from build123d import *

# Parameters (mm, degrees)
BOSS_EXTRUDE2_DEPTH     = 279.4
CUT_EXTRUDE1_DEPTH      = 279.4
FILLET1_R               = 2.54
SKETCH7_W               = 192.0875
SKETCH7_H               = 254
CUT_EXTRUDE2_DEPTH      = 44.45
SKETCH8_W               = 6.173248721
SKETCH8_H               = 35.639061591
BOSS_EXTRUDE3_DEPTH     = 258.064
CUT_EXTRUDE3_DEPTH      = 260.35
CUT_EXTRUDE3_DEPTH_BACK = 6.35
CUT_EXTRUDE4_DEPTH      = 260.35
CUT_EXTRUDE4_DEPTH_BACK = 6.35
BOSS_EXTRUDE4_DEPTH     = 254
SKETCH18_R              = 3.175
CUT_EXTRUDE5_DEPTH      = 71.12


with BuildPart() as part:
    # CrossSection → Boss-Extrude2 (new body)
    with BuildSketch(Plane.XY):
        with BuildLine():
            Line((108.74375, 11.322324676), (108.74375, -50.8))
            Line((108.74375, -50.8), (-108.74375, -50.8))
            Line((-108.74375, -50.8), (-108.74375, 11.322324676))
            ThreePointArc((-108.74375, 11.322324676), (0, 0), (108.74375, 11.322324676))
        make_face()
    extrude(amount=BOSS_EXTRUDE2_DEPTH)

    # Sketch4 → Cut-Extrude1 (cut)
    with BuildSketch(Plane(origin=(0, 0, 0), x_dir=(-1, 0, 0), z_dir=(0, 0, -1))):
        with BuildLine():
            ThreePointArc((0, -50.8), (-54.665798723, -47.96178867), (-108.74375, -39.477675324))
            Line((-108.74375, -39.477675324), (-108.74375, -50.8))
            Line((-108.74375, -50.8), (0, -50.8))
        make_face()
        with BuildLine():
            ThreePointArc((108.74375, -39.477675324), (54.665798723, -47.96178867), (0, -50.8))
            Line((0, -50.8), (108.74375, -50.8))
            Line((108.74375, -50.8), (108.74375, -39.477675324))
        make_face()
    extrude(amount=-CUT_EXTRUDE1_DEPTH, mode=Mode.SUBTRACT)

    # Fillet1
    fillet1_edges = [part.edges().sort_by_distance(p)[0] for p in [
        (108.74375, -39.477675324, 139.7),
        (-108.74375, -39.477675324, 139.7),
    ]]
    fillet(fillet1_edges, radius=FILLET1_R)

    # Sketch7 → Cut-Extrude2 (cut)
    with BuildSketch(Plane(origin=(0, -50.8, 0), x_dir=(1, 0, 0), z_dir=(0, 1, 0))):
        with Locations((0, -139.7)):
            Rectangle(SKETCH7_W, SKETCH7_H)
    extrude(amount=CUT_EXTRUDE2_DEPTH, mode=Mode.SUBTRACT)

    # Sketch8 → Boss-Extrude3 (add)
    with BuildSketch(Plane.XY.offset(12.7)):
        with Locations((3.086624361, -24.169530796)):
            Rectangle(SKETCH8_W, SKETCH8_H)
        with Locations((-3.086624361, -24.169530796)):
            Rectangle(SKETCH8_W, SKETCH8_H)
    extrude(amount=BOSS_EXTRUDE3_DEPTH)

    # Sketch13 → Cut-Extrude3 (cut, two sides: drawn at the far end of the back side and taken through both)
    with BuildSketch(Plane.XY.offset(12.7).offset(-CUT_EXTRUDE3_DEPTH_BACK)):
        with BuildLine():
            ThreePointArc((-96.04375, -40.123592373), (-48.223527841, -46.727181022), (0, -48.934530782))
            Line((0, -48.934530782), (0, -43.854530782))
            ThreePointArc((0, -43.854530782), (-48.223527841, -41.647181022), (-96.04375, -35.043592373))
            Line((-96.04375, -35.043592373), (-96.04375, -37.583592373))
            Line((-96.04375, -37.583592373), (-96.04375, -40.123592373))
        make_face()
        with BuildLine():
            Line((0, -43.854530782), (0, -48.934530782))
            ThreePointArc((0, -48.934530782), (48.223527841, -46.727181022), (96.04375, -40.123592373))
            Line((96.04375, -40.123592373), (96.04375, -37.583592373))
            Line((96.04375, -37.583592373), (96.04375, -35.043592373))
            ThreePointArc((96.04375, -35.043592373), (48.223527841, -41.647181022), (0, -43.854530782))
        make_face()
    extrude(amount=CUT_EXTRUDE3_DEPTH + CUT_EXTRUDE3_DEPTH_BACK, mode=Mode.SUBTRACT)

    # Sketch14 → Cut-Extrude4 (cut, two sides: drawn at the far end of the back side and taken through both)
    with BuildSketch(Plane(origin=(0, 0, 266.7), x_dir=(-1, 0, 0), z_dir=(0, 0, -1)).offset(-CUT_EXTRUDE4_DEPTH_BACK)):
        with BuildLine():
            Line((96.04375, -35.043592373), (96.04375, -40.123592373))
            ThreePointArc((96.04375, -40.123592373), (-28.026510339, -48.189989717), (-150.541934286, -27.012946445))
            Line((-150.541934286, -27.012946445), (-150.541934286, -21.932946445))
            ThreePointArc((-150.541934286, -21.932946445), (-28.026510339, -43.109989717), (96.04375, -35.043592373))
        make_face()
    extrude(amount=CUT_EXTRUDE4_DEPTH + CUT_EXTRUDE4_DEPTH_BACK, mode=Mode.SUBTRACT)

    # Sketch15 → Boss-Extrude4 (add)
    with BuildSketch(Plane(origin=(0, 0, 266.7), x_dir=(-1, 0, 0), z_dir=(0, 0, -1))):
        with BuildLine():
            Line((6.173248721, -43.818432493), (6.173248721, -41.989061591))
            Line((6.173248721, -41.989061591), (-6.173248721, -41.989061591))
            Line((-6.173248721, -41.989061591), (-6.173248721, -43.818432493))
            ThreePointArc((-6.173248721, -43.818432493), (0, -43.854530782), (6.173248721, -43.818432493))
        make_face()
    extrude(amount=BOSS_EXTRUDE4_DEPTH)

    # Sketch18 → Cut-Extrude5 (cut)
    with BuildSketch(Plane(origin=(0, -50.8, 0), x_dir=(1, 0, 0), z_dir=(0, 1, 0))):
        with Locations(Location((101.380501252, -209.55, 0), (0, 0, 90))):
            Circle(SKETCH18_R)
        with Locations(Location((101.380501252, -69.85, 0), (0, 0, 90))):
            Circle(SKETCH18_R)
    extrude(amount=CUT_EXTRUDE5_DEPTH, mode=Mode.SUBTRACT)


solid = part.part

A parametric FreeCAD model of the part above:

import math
import FreeCAD as App
import Part
import Sketcher
from FreeCAD import Vector
Q = App.Units.Quantity


def edges_at(feature, points):
    """Names of the edges that pass closest to the given points."""
    edges = feature.Shape.Edges
    near = lambda p: min(range(len(edges)), key=lambda i: edges[i].distToShape(Part.Vertex(*p))[0])
    return sorted({f"Edge{near(p) + 1}" for p in points})


def add_polygon(sketch, points):
    """Adds a closed chain of lines whose ends are joined by coincident constraints."""
    first, n = sketch.GeometryCount, len(points)
    for a, b in zip(points, points[1:] + points[:1]):
        sketch.addGeometry(Part.LineSegment(App.Vector(*a, 0), App.Vector(*b, 0)), False)
    for i in range(n):
        sketch.addConstraint(Sketcher.Constraint("Coincident", first + i, 2, first + (i + 1) % n, 1))

doc = App.newDocument("Part")
body = doc.addObject("PartDesign::Body", "Body")

# Sketch on XY plane
sketch1 = body.newObject("Sketcher::SketchObject", "Sketch")
sketch1.AttachmentSupport = (doc.getObject("XY_Plane"), [""])
sketch1.MapMode = "FlatFace"
sketch1.addGeometry([
    Part.LineSegment(Vector(109, -51, 0), Vector(109, 11, 0)),
    Part.ArcOfCircle(Part.Circle(Vector(0, 528, 0), Vector(0, 0, 1), 528), math.radians(-102), math.radians(-78)),
    Part.LineSegment(Vector(-109, 11, 0), Vector(-109, -51, 0)),
    Part.LineSegment(Vector(-109, -51, 0), Vector(109, -51, 0)),
], False)
sketch1.addConstraint([
    Sketcher.Constraint("Coincident", 0, 2, 1, 2),
    Sketcher.Constraint("Coincident", 1, 1, 2, 1),
    Sketcher.Constraint("Coincident", 2, 2, 3, 1),
    Sketcher.Constraint("Coincident", 3, 2, 0, 1),
    Sketcher.Constraint("Vertical", 0),
    Sketcher.Constraint("Vertical", 2),
    Sketcher.Constraint("Horizontal", 3),
    Sketcher.Constraint("PointOnObject", 1, 3, -2),
    Sketcher.Constraint("Equal", 0, 2),
    Sketcher.Constraint("DistanceY", 2, 2, -1, 1, Q("2 in")),
    Sketcher.Constraint("DistanceX", 3, 1, 3, 2, Q("8.5625 in")),
    Sketcher.Constraint("Radius", 1, Q("527.868549 mm")),
    Sketcher.Constraint("DistanceY", 0, 1, 0, 2, Q("62.122325 mm")),
])
pad1 = body.newObject("PartDesign::Pad", "Pad")
pad1.Profile = sketch1
pad1.Length = Q("11 in")

# Sketch on XY plane
sketch2 = body.newObject("Sketcher::SketchObject", "Sketch001")
sketch2.AttachmentSupport = (doc.getObject("XY_Plane"), [""])
sketch2.MapMode = "FlatFace"
sketch2.addGeometry([
    Part.ArcOfCircle(Part.Circle(Vector(0, 477, 0), Vector(0, 0, 1), 528), math.radians(-90), math.radians(-78.11)),  # 0
    Part.LineSegment(Vector(109, -39, 0), Vector(109, -51, 0)),  # 1
    Part.LineSegment(Vector(109, -51, 0), Vector(0, -51, 0)),  # 2
    Part.ArcOfCircle(Part.Circle(Vector(0, 477, 0), Vector(0, 0, 1), 528), math.radians(-101.89), math.radians(-90)),  # 3
    Part.LineSegment(Vector(0, -51, 0), Vector(-109, -51, 0)),  # 4
    Part.LineSegment(Vector(-109, -51, 0), Vector(-109, -39, 0)),  # 5
], False)
sketch2.addConstraint([
    Sketcher.Constraint("Coincident", 0, 2, 1, 1),
    Sketcher.Constraint("Coincident", 1, 2, 2, 1),
    Sketcher.Constraint("Tangent", 2, 2, 0, 1),
    Sketcher.Constraint("Tangent", 3, 2, 4, 1),
    Sketcher.Constraint("Coincident", 4, 2, 5, 1),
    Sketcher.Constraint("Coincident", 5, 2, 3, 1),
    Sketcher.Constraint("Vertical", 1),
    Sketcher.Constraint("Horizontal", 2),
    Sketcher.Constraint("Horizontal", 4),
    Sketcher.Constraint("Vertical", 5),
    Sketcher.Constraint("Coincident", 3, 3, 0, 3),
    Sketcher.Constraint("Equal", 0, 3),
    Sketcher.Constraint("PointOnObject", 0, 3, -2),
    Sketcher.Constraint("Equal", 2, 4),
    Sketcher.Constraint("DistanceY", 1, 2, -1, 1, Q("2 in")),
    Sketcher.Constraint("DistanceX", 2, 2, 2, 1, Q("4.28125 in")),
    Sketcher.Constraint("Radius", 0, Q("527.868549 mm")),
])
pocket1 = body.newObject("PartDesign::Pocket", "Pocket")
pocket1.Profile = sketch2
pocket1.Length = Q("11 in")
pocket1.Reversed = True
doc.recompute()

fillet = body.newObject("PartDesign::Fillet", "Fillet")
fillet.Base = (pocket1, edges_at(pocket1, [(108.744, -39.478, 139.7), (-108.744, -39.478, 139.7)]))
fillet.Radius = Q("0.1 in")

# Sketch on XZ plane
sketch3 = body.newObject("Sketcher::SketchObject", "Sketch002")
sketch3.AttachmentSupport = (doc.getObject("XZ_Plane"), [""])
sketch3.MapMode = "FlatFace"
sketch3.AttachmentOffset = App.Placement(Vector(0, 0, 2 * 25.4), App.Rotation())
add_polygon(sketch3, [(-96, 13), (-96, 267), (96, 267), (96, 13)])  # lines 0-3
sketch3.addConstraint([
    Sketcher.Constraint("Vertical", 0),
    Sketcher.Constraint("Horizontal", 1),
    Sketcher.Constraint("Vertical", 2),
    Sketcher.Constraint("Horizontal", 3),
    Sketcher.Constraint("DistanceY", 0, 1, 0, 2, Q("10 in")),
    Sketcher.Constraint("DistanceY", -1, 1, 0, 2, Q("10.5 in")),
    Sketcher.Constraint("DistanceX", 1, 1, 1, 2, Q("7.5625 in")),
    Sketcher.Constraint("DistanceX", 0, 2, -1, 1, Q("3.78125 in")),
])
pocket2 = body.newObject("PartDesign::Pocket", "Pocket001")
pocket2.Profile = sketch3
pocket2.Length = Q("1.75 in")

# Sketch on XY plane
sketch4 = body.newObject("Sketcher::SketchObject", "Sketch003")
sketch4.AttachmentSupport = (doc.getObject("XY_Plane"), [""])
sketch4.MapMode = "FlatFace"
sketch4.AttachmentOffset = App.Placement(Vector(0, 0, 0.5 * 25.4), App.Rotation())
add_polygon(sketch4, [(6, -42), (6, -6), (-6, -6), (-6, -42)])  # lines 0-3
sketch4.addConstraint([
    Sketcher.Constraint("Vertical", 0),
    Sketcher.Constraint("Horizontal", 1),
    Sketcher.Constraint("Vertical", 2),
    Sketcher.Constraint("Horizontal", 3),
    Sketcher.Constraint("DistanceY", 0, 2, -1, 1, Q("0.25 in")),
    Sketcher.Constraint("DistanceY", 0, 1, 0, 2, Q("35.639062 mm")),
    Sketcher.Constraint("DistanceX", 1, 2, 1, 1, Q("12.346497 mm")),
    Sketcher.Constraint("DistanceX", -1, 1, 0, 2, Q("6.173249 mm")),
])
pad2 = body.newObject("PartDesign::Pad", "Pad001")
pad2.Profile = sketch4
pad2.Length = Q("10.16 in")

# Sketch on XY plane
sketch5 = body.newObject("Sketcher::SketchObject", "Sketch004")
sketch5.AttachmentSupport = (doc.getObject("XY_Plane"), [""])
sketch5.MapMode = "FlatFace"
sketch5.AttachmentOffset = App.Placement(Vector(0, 0, 0.5 * 25.4), App.Rotation())
sketch5.addGeometry([
    Part.ArcOfCircle(Part.Circle(Vector(0, 479, 0), Vector(0, 0, 1), 528), math.radians(-100.48), math.radians(-90)),  # 0
    Part.ArcOfCircle(Part.Circle(Vector(0, 479, 0), Vector(0, 0, 1), 528), math.radians(-90), math.radians(-79.52)),  # 1
    Part.LineSegment(Vector(96, -40, 0), Vector(96, -35, 0)),  # 2
    Part.ArcOfCircle(Part.Circle(Vector(0, 484, 0), Vector(0, 0, 1), 528), math.radians(-90), math.radians(-79.52)),  # 3
    Part.ArcOfCircle(Part.Circle(Vector(0, 484, 0), Vector(0, 0, 1), 528), math.radians(-100.48), math.radians(-90)),  # 4
    Part.LineSegment(Vector(-96, -35, 0), Vector(-96, -40, 0)),  # 5
], False)
sketch5.addConstraint([
    Sketcher.Constraint("Coincident", 0, 2, 1, 1),
    Sketcher.Constraint("Coincident", 1, 2, 2, 1),
    Sketcher.Constraint("Coincident", 2, 2, 3, 2),
    Sketcher.Constraint("Coincident", 3, 1, 4, 2),
    Sketcher.Constraint("Coincident", 4, 1, 5, 1),
    Sketcher.Constraint("Coincident", 5, 2, 0, 1),
    Sketcher.Constraint("Vertical", 2),
    Sketcher.Constraint("Vertical", 5),
    Sketcher.Constraint("Coincident", 1, 3, 0, 3),
    Sketcher.Constraint("Coincident", 4, 3, 3, 3),
    Sketcher.Constraint("Equal", 1, 3),
    Sketcher.Constraint("PointOnObject", 0, 3, -2),
    Sketcher.Constraint("PointOnObject", 3, 3, -2),
    Sketcher.Constraint("PointOnObject", 0, 2, -2),
    Sketcher.Constraint("PointOnObject", 3, 1, -2),
    Sketcher.Constraint("DistanceY", 2, 1, 2, 2, Q("0.2 in")),
    Sketcher.Constraint("DistanceY", 5, 2, 2, 2, Q("0.2 in")),
    Sketcher.Constraint("DistanceX", -1, 1, 2, 2, Q("3.78125 in")),
    Sketcher.Constraint("Radius", 0, Q("527.868549 mm")),
    Sketcher.Constraint("DistanceY", -1, 1, 0, 3, Q("478.934018 mm")),
])
pocket3 = body.newObject("PartDesign::Pocket", "Pocket002")
pocket3.Profile = sketch5
pocket3.Type = "TwoLengths"
pocket3.Length = Q("10.25 in")
pocket3.Length2 = Q("0.25 in")
pocket3.Reversed = True

# Sketch on XY plane
sketch6 = body.newObject("Sketcher::SketchObject", "Sketch005")
sketch6.AttachmentSupport = (doc.getObject("XY_Plane"), [""])
sketch6.MapMode = "FlatFace"
sketch6.AttachmentOffset = App.Placement(Vector(0, 0, 10.5 * 25.4), App.Rotation())
sketch6.addGeometry([
    Part.LineSegment(Vector(-96, -40, 0), Vector(-96, -35, 0)),
    Part.ArcOfCircle(Part.Circle(Vector(0, 484, 0), Vector(0, 0, 1), 528), math.radians(-100), math.radians(-73)),
    Part.LineSegment(Vector(151, -22, 0), Vector(151, -27, 0)),
    Part.ArcOfCircle(Part.Circle(Vector(0, 479, 0), Vector(0, 0, 1), 528), math.radians(-100), math.radians(-73)),
], False)
sketch6.addConstraint([
    Sketcher.Constraint("Coincident", 0, 2, 1, 1),
    Sketcher.Constraint("Coincident", 1, 2, 2, 1),
    Sketcher.Constraint("Coincident", 2, 2, 3, 2),
    Sketcher.Constraint("Coincident", 3, 1, 0, 1),
    Sketcher.Constraint("Vertical", 0),
    Sketcher.Constraint("Vertical", 2),
    Sketcher.Constraint("Equal", 1, 3),
    Sketcher.Constraint("PointOnObject", 1, 3, -2),
    Sketcher.Constraint("PointOnObject", 3, 3, -2),
    Sketcher.Constraint("DistanceY", 0, 1, 0, 2, Q("0.2 in")),
    Sketcher.Constraint("DistanceX", 0, 2, -1, 1, Q("3.78125 in")),
    Sketcher.Constraint("Radius", 1, Q("527.868549 mm")),
    Sketcher.Constraint("DistanceY", -1, 1, 1, 3, Q("484.014018 mm")),
    Sketcher.Constraint("DistanceX", -1, 1, 2, 2, Q("150.541934 mm")),
])
pocket4 = body.newObject("PartDesign::Pocket", "Pocket003")
pocket4.Profile = sketch6
pocket4.Type = "TwoLengths"
pocket4.Length = Q("10.25 in")
pocket4.Length2 = Q("0.25 in")

# Sketch on XY plane
sketch7 = body.newObject("Sketcher::SketchObject", "Sketch006")
sketch7.AttachmentSupport = (doc.getObject("XY_Plane"), [""])
sketch7.MapMode = "FlatFace"
sketch7.AttachmentOffset = App.Placement(Vector(0, 0, 10.5 * 25.4), App.Rotation())
sketch7.addGeometry([
    Part.LineSegment(Vector(-6.2, -43.8, 0), Vector(-6.2, -42, 0)),
    Part.LineSegment(Vector(-6.2, -42, 0), Vector(6.2, -42, 0)),
    Part.LineSegment(Vector(6.2, -42, 0), Vector(6.2, -43.8, 0)),
    Part.ArcOfCircle(Part.Circle(Vector(0, 484, 0), Vector(0, 0, 1), 527.9), math.radians(-90.67), math.radians(-89.33)),
], False)
sketch7.addConstraint([
    Sketcher.Constraint("Coincident", 0, 2, 1, 1),
    Sketcher.Constraint("Coincident", 1, 2, 2, 1),
    Sketcher.Constraint("Coincident", 2, 2, 3, 2),
    Sketcher.Constraint("Coincident", 3, 1, 0, 1),
    Sketcher.Constraint("Vertical", 0),
    Sketcher.Constraint("Horizontal", 1),
    Sketcher.Constraint("Vertical", 2),
    Sketcher.Constraint("PointOnObject", 3, 3, -2),
    Sketcher.Constraint("Equal", 0, 2),
    Sketcher.Constraint("Radius", 3, Q("527.868549 mm")),
    Sketcher.Constraint("DistanceY", 0, 1, 0, 2, Q("1.829371 mm")),
    Sketcher.Constraint("DistanceX", 1, 1, 1, 2, Q("12.346497 mm")),
    Sketcher.Constraint("DistanceY", -1, 1, 3, 3, Q("484.014018 mm")),
])
pad3 = body.newObject("PartDesign::Pad", "Pad002")
pad3.Profile = sketch7
pad3.Length = Q("10 in")
pad3.Reversed = True

# Sketch on XZ plane
sketch8 = body.newObject("Sketcher::SketchObject", "Sketch007")
sketch8.AttachmentSupport = (doc.getObject("XZ_Plane"), [""])
sketch8.MapMode = "FlatFace"
sketch8.AttachmentOffset = App.Placement(Vector(0, 0, 2 * 25.4), App.Rotation())
sketch8.addGeometry([
    Part.Circle(Vector(101.4, 209.6, 0), Vector(0, 0, 1), 3.2),
    Part.Circle(Vector(101.4, 69.8, 0), Vector(0, 0, 1), 3.2),
], False)
sketch8.addConstraint([
    Sketcher.Constraint("Equal", 0, 1),
    Sketcher.Constraint("Vertical", 0, 3, 1, 3),
    Sketcher.Constraint("Diameter", 0, Q("0.25 in")),
    Sketcher.Constraint("DistanceY", 1, 3, 0, 3, Q("5.5 in")),
    Sketcher.Constraint("DistanceY", -1, 1, 0, 3, Q("8.25 in")),
    Sketcher.Constraint("DistanceX", -1, 1, 0, 3, Q("101.380501 mm")),
])
pocket5 = body.newObject("PartDesign::Pocket", "Pocket004")
pocket5.Profile = sketch8
pocket5.Length = Q("2.8 in")

doc.recompute()
